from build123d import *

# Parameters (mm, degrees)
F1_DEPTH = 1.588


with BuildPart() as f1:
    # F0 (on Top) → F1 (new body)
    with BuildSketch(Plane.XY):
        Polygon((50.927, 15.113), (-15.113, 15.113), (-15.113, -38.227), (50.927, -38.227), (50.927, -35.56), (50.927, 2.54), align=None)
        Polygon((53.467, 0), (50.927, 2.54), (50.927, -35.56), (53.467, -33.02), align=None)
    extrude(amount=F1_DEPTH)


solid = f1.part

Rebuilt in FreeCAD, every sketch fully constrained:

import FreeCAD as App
import Part
import Sketcher
Q = App.Units.Quantity


def add_polygon(sketch, points):
    """Adds a closed chain of lines whose ends are joined by coincident constraints."""
    first, n = sketch.GeometryCount, len(points)
    for a, b in zip(points, points[1:] + points[:1]):
        sketch.addGeometry(Part.LineSegment(App.Vector(*a, 0), App.Vector(*b, 0)), False)
    for i in range(n):
        sketch.addConstraint(Sketcher.Constraint("Coincident", first + i, 2, first + (i + 1) % n, 1))

doc = App.newDocument("Part")
params = doc.addObject("Spreadsheet::Sheet", "Params")
for row, (alias, value) in enumerate([
    ("sketch1_width", "2.6 in"),
    ("sketch1_height", "2.1 in"),
    ("sketch1_height2", "1.3 in"),
    ("sketch1_height3", "0.105 in"),
    ("pad1_length", "1.588 mm"),
], start=1):
    params.set(f"A{row}", alias)
    params.set(f"B{row}", "=" + value)
    params.setAlias(f"B{row}", alias)

body = doc.addObject("PartDesign::Body", "Body")

sketch1 = body.newObject("Sketcher::SketchObject", "Sketch")
sketch1.AttachmentSupport = (doc.getObject("XY_Plane"), [""])
sketch1.MapMode = "FlatFace"
add_polygon(sketch1, [(50.9, 15.1), (-15.1, 15.1), (-15.1, -38.2), (50.9, -38.2), (50.9, -35.6), (53.5, -33), (53.5, 0), (50.9, 2.5)])
sketch1.addConstraint([
    Sketcher.Constraint("Horizontal", 0),
    Sketcher.Constraint("Vertical", 1),
    Sketcher.Constraint("Horizontal", 2),
    Sketcher.Constraint("Vertical", 3),
    Sketcher.Constraint("Vertical", 5),
    Sketcher.Constraint("Vertical", 7),
    Sketcher.Constraint("PointOnObject", 5, 2, -1),
    Sketcher.Constraint("Perpendicular", 4, 6),
    Sketcher.Constraint("Vertical", 3, 2, 6, 2),
    Sketcher.Constraint("Equal", 4, 6),
    Sketcher.Constraint("DistanceX", 0, 2, 0, 1, Q("2.6 in")),
    Sketcher.Constraint("DistanceY", 1, 2, 1, 1, Q("2.1 in")),
    Sketcher.Constraint("DistanceY", 5, 1, 5, 2, Q("1.3 in")),
    Sketcher.Constraint("DistanceY", 3, 2, -1, 1, Q("1.4 in")),
    Sketcher.Constraint("DistanceY", 3, 1, 3, 2, Q("0.105 in")),
    Sketcher.Constraint("DistanceX", 0, 2, -1, 1, Q("0.595 in")),
])
sketch1.setExpression("Constraints[18]", "Params.sketch1_width")
sketch1.setExpression("Constraints[19]", "Params.sketch1_height")
sketch1.setExpression("Constraints[20]", "Params.sketch1_height2")
sketch1.setExpression("Constraints[22]", "Params.sketch1_height3")
pad1 = body.newObject("PartDesign::Pad", "Pad")
pad1.Profile = sketch1
pad1.setExpression("Length", "Params.pad1_length")

doc.recompute()
